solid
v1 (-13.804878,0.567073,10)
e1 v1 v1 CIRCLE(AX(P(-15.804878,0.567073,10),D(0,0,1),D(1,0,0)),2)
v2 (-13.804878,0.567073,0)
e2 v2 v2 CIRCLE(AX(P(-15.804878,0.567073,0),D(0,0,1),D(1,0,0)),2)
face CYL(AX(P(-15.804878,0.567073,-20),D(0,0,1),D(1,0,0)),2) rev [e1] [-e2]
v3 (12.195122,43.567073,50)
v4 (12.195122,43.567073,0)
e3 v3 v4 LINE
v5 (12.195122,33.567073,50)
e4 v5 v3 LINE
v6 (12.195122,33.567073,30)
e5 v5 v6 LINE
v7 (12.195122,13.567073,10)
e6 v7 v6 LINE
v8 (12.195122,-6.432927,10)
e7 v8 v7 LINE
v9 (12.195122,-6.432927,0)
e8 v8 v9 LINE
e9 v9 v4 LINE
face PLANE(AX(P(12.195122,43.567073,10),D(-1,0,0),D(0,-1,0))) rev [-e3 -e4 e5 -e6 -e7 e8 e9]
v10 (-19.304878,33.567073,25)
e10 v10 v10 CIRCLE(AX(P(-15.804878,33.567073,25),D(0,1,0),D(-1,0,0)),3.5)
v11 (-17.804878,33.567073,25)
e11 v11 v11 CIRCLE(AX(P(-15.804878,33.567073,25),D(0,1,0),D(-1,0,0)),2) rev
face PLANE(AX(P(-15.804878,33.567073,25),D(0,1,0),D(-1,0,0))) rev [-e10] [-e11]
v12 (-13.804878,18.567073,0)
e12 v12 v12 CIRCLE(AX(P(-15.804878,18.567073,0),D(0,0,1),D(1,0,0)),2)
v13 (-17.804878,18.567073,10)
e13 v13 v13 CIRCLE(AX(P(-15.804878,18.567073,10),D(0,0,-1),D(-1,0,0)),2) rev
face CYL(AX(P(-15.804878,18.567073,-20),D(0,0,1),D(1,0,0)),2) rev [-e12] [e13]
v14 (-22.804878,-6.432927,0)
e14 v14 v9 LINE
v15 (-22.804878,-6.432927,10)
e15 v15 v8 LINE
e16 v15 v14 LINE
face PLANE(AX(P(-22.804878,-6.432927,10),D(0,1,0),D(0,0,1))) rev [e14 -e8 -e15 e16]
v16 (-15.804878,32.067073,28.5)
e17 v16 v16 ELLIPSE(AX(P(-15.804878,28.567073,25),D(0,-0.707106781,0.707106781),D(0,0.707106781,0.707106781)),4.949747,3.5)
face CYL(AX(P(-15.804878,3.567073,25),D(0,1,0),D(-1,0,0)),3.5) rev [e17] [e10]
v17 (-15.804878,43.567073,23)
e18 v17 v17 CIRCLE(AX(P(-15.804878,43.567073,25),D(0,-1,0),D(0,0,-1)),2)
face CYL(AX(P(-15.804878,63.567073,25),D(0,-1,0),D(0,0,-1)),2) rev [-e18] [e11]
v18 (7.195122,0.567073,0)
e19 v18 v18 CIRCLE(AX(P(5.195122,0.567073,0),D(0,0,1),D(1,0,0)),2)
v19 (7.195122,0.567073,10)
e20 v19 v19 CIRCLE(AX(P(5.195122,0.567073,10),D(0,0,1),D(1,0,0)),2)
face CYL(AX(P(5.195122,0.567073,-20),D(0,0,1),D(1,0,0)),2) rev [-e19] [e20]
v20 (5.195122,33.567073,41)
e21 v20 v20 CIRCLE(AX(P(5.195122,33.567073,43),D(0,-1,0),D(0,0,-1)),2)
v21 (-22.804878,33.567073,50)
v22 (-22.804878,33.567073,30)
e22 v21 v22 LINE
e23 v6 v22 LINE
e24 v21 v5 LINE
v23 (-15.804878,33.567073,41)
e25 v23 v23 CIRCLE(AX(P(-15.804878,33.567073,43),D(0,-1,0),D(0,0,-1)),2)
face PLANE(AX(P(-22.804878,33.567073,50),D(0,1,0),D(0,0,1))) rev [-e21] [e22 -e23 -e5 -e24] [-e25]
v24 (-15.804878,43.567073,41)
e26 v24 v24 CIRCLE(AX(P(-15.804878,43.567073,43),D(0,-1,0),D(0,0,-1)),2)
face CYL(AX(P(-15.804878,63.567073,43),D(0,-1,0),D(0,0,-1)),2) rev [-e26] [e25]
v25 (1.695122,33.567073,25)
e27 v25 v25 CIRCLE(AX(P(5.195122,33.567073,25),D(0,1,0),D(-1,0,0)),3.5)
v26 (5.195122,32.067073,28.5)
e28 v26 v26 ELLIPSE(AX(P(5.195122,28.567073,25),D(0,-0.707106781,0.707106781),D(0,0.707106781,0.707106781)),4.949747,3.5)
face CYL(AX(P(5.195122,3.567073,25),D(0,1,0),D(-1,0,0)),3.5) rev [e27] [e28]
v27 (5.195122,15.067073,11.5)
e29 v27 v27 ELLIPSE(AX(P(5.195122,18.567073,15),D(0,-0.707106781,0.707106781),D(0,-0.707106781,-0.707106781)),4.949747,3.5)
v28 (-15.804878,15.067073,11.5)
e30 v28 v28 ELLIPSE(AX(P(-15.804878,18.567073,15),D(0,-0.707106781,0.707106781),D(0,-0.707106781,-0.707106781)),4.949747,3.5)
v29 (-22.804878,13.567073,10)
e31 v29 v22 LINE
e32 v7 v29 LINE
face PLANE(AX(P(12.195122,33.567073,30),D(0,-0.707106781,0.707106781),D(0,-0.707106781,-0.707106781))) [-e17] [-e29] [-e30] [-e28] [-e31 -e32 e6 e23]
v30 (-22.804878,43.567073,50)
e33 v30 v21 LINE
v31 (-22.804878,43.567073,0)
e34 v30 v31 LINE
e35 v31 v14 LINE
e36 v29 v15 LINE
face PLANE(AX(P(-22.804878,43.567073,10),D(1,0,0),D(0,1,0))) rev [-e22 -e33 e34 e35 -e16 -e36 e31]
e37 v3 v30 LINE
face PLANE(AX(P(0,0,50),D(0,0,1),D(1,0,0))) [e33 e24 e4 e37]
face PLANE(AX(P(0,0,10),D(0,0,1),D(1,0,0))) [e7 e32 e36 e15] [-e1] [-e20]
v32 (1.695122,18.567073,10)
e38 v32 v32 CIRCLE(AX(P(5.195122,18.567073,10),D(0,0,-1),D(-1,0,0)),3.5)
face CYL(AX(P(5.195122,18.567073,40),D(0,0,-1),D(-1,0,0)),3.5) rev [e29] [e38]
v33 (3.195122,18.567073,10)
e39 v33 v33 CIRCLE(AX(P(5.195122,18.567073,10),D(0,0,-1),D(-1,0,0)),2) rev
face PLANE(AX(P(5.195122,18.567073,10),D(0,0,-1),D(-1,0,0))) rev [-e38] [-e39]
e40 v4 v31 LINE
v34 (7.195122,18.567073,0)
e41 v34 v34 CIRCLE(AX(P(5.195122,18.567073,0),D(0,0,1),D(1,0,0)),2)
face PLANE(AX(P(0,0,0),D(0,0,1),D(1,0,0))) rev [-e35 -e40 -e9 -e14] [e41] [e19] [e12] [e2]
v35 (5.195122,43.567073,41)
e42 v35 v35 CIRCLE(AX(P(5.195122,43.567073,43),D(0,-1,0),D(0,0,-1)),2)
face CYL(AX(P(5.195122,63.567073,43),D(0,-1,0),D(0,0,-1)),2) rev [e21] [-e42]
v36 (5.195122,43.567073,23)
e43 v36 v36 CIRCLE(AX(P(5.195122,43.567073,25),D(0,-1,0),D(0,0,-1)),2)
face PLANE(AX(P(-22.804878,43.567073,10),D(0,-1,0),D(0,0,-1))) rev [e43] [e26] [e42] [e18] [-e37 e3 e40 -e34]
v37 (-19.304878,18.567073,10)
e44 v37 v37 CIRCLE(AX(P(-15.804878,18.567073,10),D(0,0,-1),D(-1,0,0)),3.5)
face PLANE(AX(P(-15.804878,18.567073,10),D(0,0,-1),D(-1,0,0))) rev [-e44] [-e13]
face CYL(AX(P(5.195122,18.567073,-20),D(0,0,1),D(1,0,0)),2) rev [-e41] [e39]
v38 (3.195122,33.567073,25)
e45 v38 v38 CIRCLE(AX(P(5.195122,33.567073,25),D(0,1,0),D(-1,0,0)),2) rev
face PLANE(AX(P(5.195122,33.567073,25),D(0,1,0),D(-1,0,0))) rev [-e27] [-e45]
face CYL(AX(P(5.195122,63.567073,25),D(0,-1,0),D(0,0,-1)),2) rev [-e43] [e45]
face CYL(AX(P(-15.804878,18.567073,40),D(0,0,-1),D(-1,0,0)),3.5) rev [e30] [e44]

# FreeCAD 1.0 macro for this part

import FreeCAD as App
import Part
import Sketcher

doc = App.newDocument("Part")
body = doc.addObject("PartDesign::Body", "Body")

sketch1 = body.newObject("Sketcher::SketchObject", "Sketch")
sketch1.AttachmentSupport = (doc.getObject("XY_Plane"), [""])
sketch1.MapMode = "FlatFace"
sketch1.addGeometry([
    Part.LineSegment(App.Vector(-22.804878, 43.567073, 0), App.Vector(-22.804878, -6.432927, 0)),
    Part.LineSegment(App.Vector(-22.804878, -6.432927, 0), App.Vector(12.195122, -6.432927, 0)),
    Part.LineSegment(App.Vector(12.195122, -6.432927, 0), App.Vector(12.195122, 43.567073, 0)),
    Part.LineSegment(App.Vector(12.195122, 43.567073, 0), App.Vector(-22.804878, 43.567073, 0)),
], False)
sketch1.addConstraint([
    Sketcher.Constraint("Coincident", 0, 2, 1, 1),
    Sketcher.Constraint("Coincident", 1, 2, 2, 1),
    Sketcher.Constraint("Coincident", 2, 2, 3, 1),
    Sketcher.Constraint("Coincident", 3, 2, 0, 1),
    Sketcher.Constraint("Vertical", 0),
    Sketcher.Constraint("Horizontal", 1),
    Sketcher.Constraint("Vertical", 2),
    Sketcher.Constraint("Horizontal", 3),
    Sketcher.Constraint("DistanceX", 1, 1, 1, 2, 35.0),
    Sketcher.Constraint("DistanceY", 0, 2, 0, 1, 50.0),
    Sketcher.Constraint("DistanceX", 0, 2, -1, 1, 22.804878),
    Sketcher.Constraint("DistanceY", 0, 2, -1, 1, 6.432927),
])
pad1 = body.newObject("PartDesign::Pad", "Pad")
pad1.Profile = sketch1
pad1.Length = 10

sketch2 = body.newObject("Sketcher::SketchObject", "Sketch001")
sketch2.AttachmentSupport = (doc.getObject("XY_Plane"), [""])
sketch2.MapMode = "FlatFace"
sketch2.AttachmentOffset = App.Placement(App.Vector(0, 0, 10), App.Rotation())
sketch2.addGeometry([
    Part.LineSegment(App.Vector(-22.804878, 43.567073, 0), App.Vector(-22.804878, 33.567073, 0)),
    Part.LineSegment(App.Vector(-22.804878, 33.567073, 0), App.Vector(12.195122, 33.567073, 0)),
    Part.LineSegment(App.Vector(12.195122, 33.567073, 0), App.Vector(12.195122, 43.567073, 0)),
    Part.LineSegment(App.Vector(12.195122, 43.567073, 0), App.Vector(-22.804878, 43.567073, 0)),
], False)
sketch2.addConstraint([
    Sketcher.Constraint("Coincident", 0, 2, 1, 1),
    Sketcher.Constraint("Coincident", 1, 2, 2, 1),
    Sketcher.Constraint("Coincident", 2, 2, 3, 1),
    Sketcher.Constraint("Coincident", 3, 2, 0, 1),
    Sketcher.Constraint("Vertical", 0),
    Sketcher.Constraint("Horizontal", 1),
    Sketcher.Constraint("Vertical", 2),
    Sketcher.Constraint("Horizontal", 3),
    Sketcher.Constraint("DistanceX", 1, 1, 1, 2, 35.0),
    Sketcher.Constraint("DistanceY", 0, 2, 0, 1, 10.0),
    Sketcher.Constraint("DistanceX", 0, 2, -1, 1, 22.804878),
    Sketcher.Constraint("DistanceY", -1, 1, 0, 2, 33.567073),
])
pad2 = body.newObject("PartDesign::Pad", "Pad001")
pad2.Profile = sketch2
pad2.Length = 40

sketch3 = body.newObject("Sketcher::SketchObject", "Sketch002")
sketch3.AttachmentSupport = (doc.getObject("XY_Plane"), [""])
sketch3.MapMode = "FlatFace"
sketch3.AttachmentOffset = App.Placement(App.Vector(0, 0, 10), App.Rotation())
sketch3.addGeometry([
    Part.Circle(App.Vector(5.195122, 0.567073, 0), App.Vector(0, 0, 1), 2),
    Part.Circle(App.Vector(-15.804878, 18.567073, 0), App.Vector(0, 0, 1), 2),
    Part.Circle(App.Vector(5.195122, 18.567073, 0), App.Vector(0, 0, 1), 2),
    Part.Circle(App.Vector(-15.804878, 0.567073, 0), App.Vector(0, 0, 1), 2),
], False)
sketch3.addConstraint([
    Sketcher.Constraint("Equal", 0, 1),
    Sketcher.Constraint("Equal", 1, 2),
    Sketcher.Constraint("Equal", 2, 3),
    Sketcher.Constraint("Horizontal", 1, 3, 2, 3),
    Sketcher.Constraint("Horizontal", 0, 3, 3, 3),
    Sketcher.Constraint("Vertical", 0, 3, 2, 3),
    Sketcher.Constraint("Vertical", 1, 3, 3, 3),
    Sketcher.Constraint("Diameter", 0, 4.0),
    Sketcher.Constraint("DistanceX", 1, 3, 0, 3, 21.0),
    Sketcher.Constraint("DistanceY", 0, 3, 1, 3, 18.0),
    Sketcher.Constraint("DistanceX", -1, 1, 0, 3, 5.195122),
    Sketcher.Constraint("DistanceY", -1, 1, 0, 3, 0.567073),
])
pocket1 = body.newObject("PartDesign::Pocket", "Pocket")
pocket1.Profile = sketch3
pocket1.Length = 30

sketch4 = body.newObject("Sketcher::SketchObject", "Sketch003")
sketch4.AttachmentSupport = (doc.getObject("XZ_Plane"), [""])
sketch4.MapMode = "FlatFace"
sketch4.AttachmentOffset = App.Placement(App.Vector(0, 0, -33.567073), App.Rotation())
sketch4.addGeometry([
    Part.Circle(App.Vector(-15.804878, 43, 0), App.Vector(0, 0, 1), 2),
    Part.Circle(App.Vector(5.195122, 43, 0), App.Vector(0, 0, 1), 2),
    Part.Circle(App.Vector(-15.804878, 25, 0), App.Vector(0, 0, 1), 2),
    Part.Circle(App.Vector(5.195122, 25, 0), App.Vector(0, 0, 1), 2),
], False)
sketch4.addConstraint([
    Sketcher.Constraint("Equal", 0, 1),
    Sketcher.Constraint("Equal", 1, 2),
    Sketcher.Constraint("Equal", 2, 3),
    Sketcher.Constraint("Horizontal", 0, 3, 1, 3),
    Sketcher.Constraint("Horizontal", 2, 3, 3, 3),
    Sketcher.Constraint("Vertical", 0, 3, 2, 3),
    Sketcher.Constraint("Vertical", 1, 3, 3, 3),
    Sketcher.Constraint("Diameter", 0, 4.0),
    Sketcher.Constraint("DistanceY", -1, 1, 0, 3, 43.0),
    Sketcher.Constraint("DistanceY", -1, 1, 2, 3, 25.0),
    Sketcher.Constraint("DistanceX", 0, 3, 1, 3, 21.0),
    Sketcher.Constraint("DistanceX", 0, 3, -1, 1, 15.804878),
])
pocket2 = body.newObject("PartDesign::Pocket", "Pocket001")
pocket2.Profile = sketch4
pocket2.Length = 30

sketch5 = body.newObject("Sketcher::SketchObject", "Sketch004")
sketch5.AttachmentSupport = (doc.getObject("YZ_Plane"), [""])
sketch5.MapMode = "FlatFace"
sketch5.AttachmentOffset = App.Placement(App.Vector(0, 0, -22.804878), App.Rotation())
sketch5.addGeometry([
    Part.LineSegment(App.Vector(13.567073, 10, 0), App.Vector(33.567073, 30, 0)),
    Part.LineSegment(App.Vector(33.567073, 30, 0), App.Vector(33.567073, 10, 0)),
    Part.LineSegment(App.Vector(33.567073, 10, 0), App.Vector(13.567073, 10, 0)),
], False)
sketch5.addConstraint([
    Sketcher.Constraint("Coincident", 0, 2, 1, 1),
    Sketcher.Constraint("Coincident", 1, 2, 2, 1),
    Sketcher.Constraint("Coincident", 2, 2, 0, 1),
    Sketcher.Constraint("Vertical", 1),
    Sketcher.Constraint("Horizontal", 2),
    Sketcher.Constraint("Equal", 2, 1),
    Sketcher.Constraint("DistanceX", 2, 2, 2, 1, 20.0),
    Sketcher.Constraint("DistanceY", -1, 1, 0, 2, 30.0),
    Sketcher.Constraint("DistanceX", -1, 1, 0, 2, 33.567073),
])
pad3 = body.newObject("PartDesign::Pad", "Pad002")
pad3.Profile = sketch5
pad3.Length = 35

sketch6 = body.newObject("Sketcher::SketchObject", "Sketch005")
sketch6.AttachmentSupport = (doc.getObject("XZ_Plane"), [""])
sketch6.MapMode = "FlatFace"
sketch6.AttachmentOffset = App.Placement(App.Vector(0, 0, -33.567073), App.Rotation())
sketch6.addGeometry([
    Part.Circle(App.Vector(5.195122, 25, 0), App.Vector(0, 0, 1), 3.5),
    Part.Circle(App.Vector(-15.804878, 25, 0), App.Vector(0, 0, 1), 3.5),
], False)
sketch6.addConstraint([
    Sketcher.Constraint("Equal", 0, 1),
    Sketcher.Constraint("Horizontal", 0, 3, 1, 3),
    Sketcher.Constraint("Diameter", 0, 7.0),
    Sketcher.Constraint("DistanceY", -1, 1, 0, 3, 25.0),
    Sketcher.Constraint("DistanceX", 1, 3, 0, 3, 21.0),
    Sketcher.Constraint("DistanceX", -1, 1, 0, 3, 5.195122),
])
pocket3 = body.newObject("PartDesign::Pocket", "Pocket002")
pocket3.Profile = sketch6
pocket3.Length = 30
pocket3.Reversed = True

sketch7 = body.newObject("Sketcher::SketchObject", "Sketch006")
sketch7.AttachmentSupport = (doc.getObject("XY_Plane"), [""])
sketch7.MapMode = "FlatFace"
sketch7.AttachmentOffset = App.Placement(App.Vector(0, 0, 10), App.Rotation())
sketch7.addGeometry([
    Part.Circle(App.Vector(5.195122, 18.567073, 0), App.Vector(0, 0, 1), 3.5),
    Part.Circle(App.Vector(-15.804878, 18.567073, 0), App.Vector(0, 0, 1), 3.5),
], False)
sketch7.addConstraint([
    Sketcher.Constraint("Equal", 0, 1),
    Sketcher.Constraint("Horizontal", 0, 3, 1, 3),
    Sketcher.Constraint("Diameter", 0, 7.0),
    Sketcher.Constraint("DistanceX", 1, 3, 0, 3, 21.0),
    Sketcher.Constraint("DistanceX", -1, 1, 0, 3, 5.195122),
    Sketcher.Constraint("DistanceY", -1, 1, 0, 3, 18.567073),
])
pocket4 = body.newObject("PartDesign::Pocket", "Pocket003")
pocket4.Profile = sketch7
pocket4.Length = 30
pocket4.Reversed = True

doc.recompute()
